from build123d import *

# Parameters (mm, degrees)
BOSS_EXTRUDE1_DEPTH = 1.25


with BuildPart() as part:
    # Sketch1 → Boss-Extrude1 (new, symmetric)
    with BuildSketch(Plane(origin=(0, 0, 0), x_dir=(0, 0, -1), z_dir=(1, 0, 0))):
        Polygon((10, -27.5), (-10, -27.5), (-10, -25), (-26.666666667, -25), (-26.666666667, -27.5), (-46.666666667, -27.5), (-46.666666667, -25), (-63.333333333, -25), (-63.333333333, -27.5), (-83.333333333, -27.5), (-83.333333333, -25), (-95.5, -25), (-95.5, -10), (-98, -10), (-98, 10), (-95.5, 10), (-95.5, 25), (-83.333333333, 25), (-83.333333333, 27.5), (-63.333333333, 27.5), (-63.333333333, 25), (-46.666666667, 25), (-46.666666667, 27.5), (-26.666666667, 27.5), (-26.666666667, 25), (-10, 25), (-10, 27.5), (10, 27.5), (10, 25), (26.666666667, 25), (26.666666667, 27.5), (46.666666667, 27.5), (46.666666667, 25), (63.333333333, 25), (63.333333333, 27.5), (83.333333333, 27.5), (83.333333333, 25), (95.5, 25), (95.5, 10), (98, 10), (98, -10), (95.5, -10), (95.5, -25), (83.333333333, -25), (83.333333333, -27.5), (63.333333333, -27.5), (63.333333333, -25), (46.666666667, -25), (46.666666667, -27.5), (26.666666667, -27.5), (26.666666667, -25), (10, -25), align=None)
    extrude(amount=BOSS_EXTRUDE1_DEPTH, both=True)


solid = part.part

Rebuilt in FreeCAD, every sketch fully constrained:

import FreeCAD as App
import Part
import Sketcher

doc = App.newDocument("Part")
params = doc.addObject("Spreadsheet::Sheet", "Params")
for row, (alias, value) in enumerate([
    ("sketch1_width", "15 mm"),
    ("sketch1_width2", "20 mm"),
    ("sketch1_width3", "2.5 mm"),
    ("pad1_length", "2.5 mm"),
], start=1):
    params.set(f"A{row}", alias)
    params.set(f"B{row}", "=" + value)
    params.setAlias(f"B{row}", alias)

body = doc.addObject("PartDesign::Body", "Body")

sketch1 = doc.addObject("Sketcher::SketchObject", "Sketch")
body.addObject(sketch1)
sketch1.AttachmentSupport = (doc.YZ_Plane, [""])
sketch1.MapMode = "FlatFace"
sketch1.addGeometry(Part.LineSegment(App.Vector(-27.5, 10, 0), App.Vector(-27.5, -10, 0)), False)
sketch1.addGeometry(Part.LineSegment(App.Vector(-27.5, -10, 0), App.Vector(-25, -10, 0)), False)
sketch1.addGeometry(Part.LineSegment(App.Vector(-25, -10, 0), App.Vector(-25, -26.666667, 0)), False)
sketch1.addGeometry(Part.LineSegment(App.Vector(-25, -26.666667, 0), App.Vector(-27.5, -26.666667, 0)), False)
sketch1.addGeometry(Part.LineSegment(App.Vector(-27.5, -26.666667, 0), App.Vector(-27.5, -46.666667, 0)), False)
sketch1.addGeometry(Part.LineSegment(App.Vector(-27.5, -46.666667, 0), App.Vector(-25, -46.666667, 0)), False)
sketch1.addGeometry(Part.LineSegment(App.Vector(-25, -46.666667, 0), App.Vector(-25, -63.333333, 0)), False)
sketch1.addGeometry(Part.LineSegment(App.Vector(-25, -63.333333, 0), App.Vector(-27.5, -63.333333, 0)), False)
sketch1.addGeometry(Part.LineSegment(App.Vector(-27.5, -63.333333, 0), App.Vector(-27.5, -83.333333, 0)), False)
sketch1.addGeometry(Part.LineSegment(App.Vector(-27.5, -83.333333, 0), App.Vector(-25, -83.333333, 0)), False)
sketch1.addGeometry(Part.LineSegment(App.Vector(-25, -83.333333, 0), App.Vector(-25, -95.5, 0)), False)
sketch1.addGeometry(Part.LineSegment(App.Vector(-25, -95.5, 0), App.Vector(-10, -95.5, 0)), False)
sketch1.addGeometry(Part.LineSegment(App.Vector(-10, -95.5, 0), App.Vector(-10, -98, 0)), False)
sketch1.addGeometry(Part.LineSegment(App.Vector(-10, -98, 0), App.Vector(10, -98, 0)), False)
sketch1.addGeometry(Part.LineSegment(App.Vector(10, -98, 0), App.Vector(10, -95.5, 0)), False)
sketch1.addGeometry(Part.LineSegment(App.Vector(10, -95.5, 0), App.Vector(25, -95.5, 0)), False)
sketch1.addGeometry(Part.LineSegment(App.Vector(25, -95.5, 0), App.Vector(25, -83.333333, 0)), False)
sketch1.addGeometry(Part.LineSegment(App.Vector(25, -83.333333, 0), App.Vector(27.5, -83.333333, 0)), False)
sketch1.addGeometry(Part.LineSegment(App.Vector(27.5, -83.333333, 0), App.Vector(27.5, -63.333333, 0)), False)
sketch1.addGeometry(Part.LineSegment(App.Vector(27.5, -63.333333, 0), App.Vector(25, -63.333333, 0)), False)
sketch1.addGeometry(Part.LineSegment(App.Vector(25, -63.333333, 0), App.Vector(25, -46.666667, 0)), False)
sketch1.addGeometry(Part.LineSegment(App.Vector(25, -46.666667, 0), App.Vector(27.5, -46.666667, 0)), False)
sketch1.addGeometry(Part.LineSegment(App.Vector(27.5, -46.666667, 0), App.Vector(27.5, -26.666667, 0)), False)
sketch1.addGeometry(Part.LineSegment(App.Vector(27.5, -26.666667, 0), App.Vector(25, -26.666667, 0)), False)
sketch1.addGeometry(Part.LineSegment(App.Vector(25, -26.666667, 0), App.Vector(25, -10, 0)), False)
sketch1.addGeometry(Part.LineSegment(App.Vector(25, -10, 0), App.Vector(27.5, -10, 0)), False)
sketch1.addGeometry(Part.LineSegment(App.Vector(27.5, -10, 0), App.Vector(27.5, 10, 0)), False)
sketch1.addGeometry(Part.LineSegment(App.Vector(27.5, 10, 0), App.Vector(25, 10, 0)), False)
sketch1.addGeometry(Part.LineSegment(App.Vector(25, 10, 0), App.Vector(25, 26.666667, 0)), False)
sketch1.addGeometry(Part.LineSegment(App.Vector(25, 26.666667, 0), App.Vector(27.5, 26.666667, 0)), False)
sketch1.addGeometry(Part.LineSegment(App.Vector(27.5, 26.666667, 0), App.Vector(27.5, 46.666667, 0)), False)
sketch1.addGeometry(Part.LineSegment(App.Vector(27.5, 46.666667, 0), App.Vector(25, 46.666667, 0)), False)
sketch1.addGeometry(Part.LineSegment(App.Vector(25, 46.666667, 0), App.Vector(25, 63.333333, 0)), False)
sketch1.addGeometry(Part.LineSegment(App.Vector(25, 63.333333, 0), App.Vector(27.5, 63.333333, 0)), False)
sketch1.addGeometry(Part.LineSegment(App.Vector(27.5, 63.333333, 0), App.Vector(27.5, 83.333333, 0)), False)
sketch1.addGeometry(Part.LineSegment(App.Vector(27.5, 83.333333, 0), App.Vector(25, 83.333333, 0)), False)
sketch1.addGeometry(Part.LineSegment(App.Vector(25, 83.333333, 0), App.Vector(25, 95.5, 0)), False)
sketch1.addGeometry(Part.LineSegment(App.Vector(25, 95.5, 0), App.Vector(10, 95.5, 0)), False)
sketch1.addGeometry(Part.LineSegment(App.Vector(10, 95.5, 0), App.Vector(10, 98, 0)), False)
sketch1.addGeometry(Part.LineSegment(App.Vector(10, 98, 0), App.Vector(-10, 98, 0)), False)
sketch1.addGeometry(Part.LineSegment(App.Vector(-10, 98, 0), App.Vector(-10, 95.5, 0)), False)
sketch1.addGeometry(Part.LineSegment(App.Vector(-10, 95.5, 0), App.Vector(-25, 95.5, 0)), False)
sketch1.addGeometry(Part.LineSegment(App.Vector(-25, 95.5, 0), App.Vector(-25, 83.333333, 0)), False)
sketch1.addGeometry(Part.LineSegment(App.Vector(-25, 83.333333, 0), App.Vector(-27.5, 83.333333, 0)), False)
sketch1.addGeometry(Part.LineSegment(App.Vector(-27.5, 83.333333, 0), App.Vector(-27.5, 63.333333, 0)), False)
sketch1.addGeometry(Part.LineSegment(App.Vector(-27.5, 63.333333, 0), App.Vector(-25, 63.333333, 0)), False)
sketch1.addGeometry(Part.LineSegment(App.Vector(-25, 63.333333, 0), App.Vector(-25, 46.666667, 0)), False)
sketch1.addGeometry(Part.LineSegment(App.Vector(-25, 46.666667, 0), App.Vector(-27.5, 46.666667, 0)), False)
sketch1.addGeometry(Part.LineSegment(App.Vector(-27.5, 46.666667, 0), App.Vector(-27.5, 26.666667, 0)), False)
sketch1.addGeometry(Part.LineSegment(App.Vector(-27.5, 26.666667, 0), App.Vector(-25, 26.666667, 0)), False)
sketch1.addGeometry(Part.LineSegment(App.Vector(-25, 26.666667, 0), App.Vector(-25, 10, 0)), False)
sketch1.addGeometry(Part.LineSegment(App.Vector(-25, 10, 0), App.Vector(-27.5, 10, 0)), False)
sketch1.addConstraint(Sketcher.Constraint("Coincident", 0, 2, 1, 1))
sketch1.addConstraint(Sketcher.Constraint("Coincident", 1, 2, 2, 1))
sketch1.addConstraint(Sketcher.Constraint("Coincident", 2, 2, 3, 1))
sketch1.addConstraint(Sketcher.Constraint("Coincident", 3, 2, 4, 1))
sketch1.addConstraint(Sketcher.Constraint("Coincident", 4, 2, 5, 1))
sketch1.addConstraint(Sketcher.Constraint("Coincident", 5, 2, 6, 1))
sketch1.addConstraint(Sketcher.Constraint("Coincident", 6, 2, 7, 1))
sketch1.addConstraint(Sketcher.Constraint("Coincident", 7, 2, 8, 1))
sketch1.addConstraint(Sketcher.Constraint("Coincident", 8, 2, 9, 1))
sketch1.addConstraint(Sketcher.Constraint("Coincident", 9, 2, 10, 1))
sketch1.addConstraint(Sketcher.Constraint("Coincident", 10, 2, 11, 1))
sketch1.addConstraint(Sketcher.Constraint("Coincident", 11, 2, 12, 1))
sketch1.addConstraint(Sketcher.Constraint("Coincident", 12, 2, 13, 1))
sketch1.addConstraint(Sketcher.Constraint("Coincident", 13, 2, 14, 1))
sketch1.addConstraint(Sketcher.Constraint("Coincident", 14, 2, 15, 1))
sketch1.addConstraint(Sketcher.Constraint("Coincident", 15, 2, 16, 1))
sketch1.addConstraint(Sketcher.Constraint("Coincident", 16, 2, 17, 1))
sketch1.addConstraint(Sketcher.Constraint("Coincident", 17, 2, 18, 1))
sketch1.addConstraint(Sketcher.Constraint("Coincident", 18, 2, 19, 1))
sketch1.addConstraint(Sketcher.Constraint("Coincident", 19, 2, 20, 1))
sketch1.addConstraint(Sketcher.Constraint("Coincident", 20, 2, 21, 1))
sketch1.addConstraint(Sketcher.Constraint("Coincident", 21, 2, 22, 1))
sketch1.addConstraint(Sketcher.Constraint("Coincident", 22, 2, 23, 1))
sketch1.addConstraint(Sketcher.Constraint("Coincident", 23, 2, 24, 1))
sketch1.addConstraint(Sketcher.Constraint("Coincident", 24, 2, 25, 1))
sketch1.addConstraint(Sketcher.Constraint("Coincident", 25, 2, 26, 1))
sketch1.addConstraint(Sketcher.Constraint("Coincident", 26, 2, 27, 1))
sketch1.addConstraint(Sketcher.Constraint("Coincident", 27, 2, 28, 1))
sketch1.addConstraint(Sketcher.Constraint("Coincident", 28, 2, 29, 1))
sketch1.addConstraint(Sketcher.Constraint("Coincident", 29, 2, 30, 1))
sketch1.addConstraint(Sketcher.Constraint("Coincident", 30, 2, 31, 1))
sketch1.addConstraint(Sketcher.Constraint("Coincident", 31, 2, 32, 1))
sketch1.addConstraint(Sketcher.Constraint("Coincident", 32, 2, 33, 1))
sketch1.addConstraint(Sketcher.Constraint("Coincident", 33, 2, 34, 1))
sketch1.addConstraint(Sketcher.Constraint("Coincident", 34, 2, 35, 1))
sketch1.addConstraint(Sketcher.Constraint("Coincident", 35, 2, 36, 1))
sketch1.addConstraint(Sketcher.Constraint("Coincident", 36, 2, 37, 1))
sketch1.addConstraint(Sketcher.Constraint("Coincident", 37, 2, 38, 1))
sketch1.addConstraint(Sketcher.Constraint("Coincident", 38, 2, 39, 1))
sketch1.addConstraint(Sketcher.Constraint("Coincident", 39, 2, 40, 1))
sketch1.addConstraint(Sketcher.Constraint("Coincident", 40, 2, 41, 1))
sketch1.addConstraint(Sketcher.Constraint("Coincident", 41, 2, 42, 1))
sketch1.addConstraint(Sketcher.Constraint("Coincident", 42, 2, 43, 1))
sketch1.addConstraint(Sketcher.Constraint("Coincident", 43, 2, 44, 1))
sketch1.addConstraint(Sketcher.Constraint("Coincident", 44, 2, 45, 1))
sketch1.addConstraint(Sketcher.Constraint("Coincident", 45, 2, 46, 1))
sketch1.addConstraint(Sketcher.Constraint("Coincident", 46, 2, 47, 1))
sketch1.addConstraint(Sketcher.Constraint("Coincident", 47, 2, 48, 1))
sketch1.addConstraint(Sketcher.Constraint("Coincident", 48, 2, 49, 1))
sketch1.addConstraint(Sketcher.Constraint("Coincident", 49, 2, 50, 1))
sketch1.addConstraint(Sketcher.Constraint("Coincident", 50, 2, 51, 1))
sketch1.addConstraint(Sketcher.Constraint("Coincident", 51, 2, 0, 1))
sketch1.addConstraint(Sketcher.Constraint("Vertical", 0))
sketch1.addConstraint(Sketcher.Constraint("Horizontal", 1))
sketch1.addConstraint(Sketcher.Constraint("Vertical", 2))
sketch1.addConstraint(Sketcher.Constraint("Horizontal", 3))
sketch1.addConstraint(Sketcher.Constraint("Vertical", 4))
sketch1.addConstraint(Sketcher.Constraint("Horizontal", 5))
sketch1.addConstraint(Sketcher.Constraint("Vertical", 6))
sketch1.addConstraint(Sketcher.Constraint("Horizontal", 7))
sketch1.addConstraint(Sketcher.Constraint("Vertical", 8))
sketch1.addConstraint(Sketcher.Constraint("Horizontal", 9))
sketch1.addConstraint(Sketcher.Constraint("Vertical", 10))
sketch1.addConstraint(Sketcher.Constraint("Horizontal", 11))
sketch1.addConstraint(Sketcher.Constraint("Vertical", 12))
sketch1.addConstraint(Sketcher.Constraint("Horizontal", 13))
sketch1.addConstraint(Sketcher.Constraint("Vertical", 14))
sketch1.addConstraint(Sketcher.Constraint("Horizontal", 15))
sketch1.addConstraint(Sketcher.Constraint("Vertical", 16))
sketch1.addConstraint(Sketcher.Constraint("Horizontal", 17))
sketch1.addConstraint(Sketcher.Constraint("Vertical", 18))
sketch1.addConstraint(Sketcher.Constraint("Horizontal", 19))
sketch1.addConstraint(Sketcher.Constraint("Vertical", 20))
sketch1.addConstraint(Sketcher.Constraint("Horizontal", 21))
sketch1.addConstraint(Sketcher.Constraint("Vertical", 22))
sketch1.addConstraint(Sketcher.Constraint("Horizontal", 23))
sketch1.addConstraint(Sketcher.Constraint("Vertical", 24))
sketch1.addConstraint(Sketcher.Constraint("Horizontal", 25))
sketch1.addConstraint(Sketcher.Constraint("Vertical", 26))
sketch1.addConstraint(Sketcher.Constraint("Horizontal", 27))
sketch1.addConstraint(Sketcher.Constraint("Vertical", 28))
sketch1.addConstraint(Sketcher.Constraint("Horizontal", 29))
sketch1.addConstraint(Sketcher.Constraint("Vertical", 30))
sketch1.addConstraint(Sketcher.Constraint("Horizontal", 31))
sketch1.addConstraint(Sketcher.Constraint("Vertical", 32))
sketch1.addConstraint(Sketcher.Constraint("Horizontal", 33))
sketch1.addConstraint(Sketcher.Constraint("Vertical", 34))
sketch1.addConstraint(Sketcher.Constraint("Horizontal", 35))
sketch1.addConstraint(Sketcher.Constraint("Vertical", 36))
sketch1.addConstraint(Sketcher.Constraint("Horizontal", 37))
sketch1.addConstraint(Sketcher.Constraint("Vertical", 38))
sketch1.addConstraint(Sketcher.Constraint("Horizontal", 39))
sketch1.addConstraint(Sketcher.Constraint("Vertical", 40))
sketch1.addConstraint(Sketcher.Constraint("Horizontal", 41))
sketch1.addConstraint(Sketcher.Constraint("Vertical", 42))
sketch1.addConstraint(Sketcher.Constraint("Horizontal", 43))
sketch1.addConstraint(Sketcher.Constraint("Vertical", 44))
sketch1.addConstraint(Sketcher.Constraint("Horizontal", 45))
sketch1.addConstraint(Sketcher.Constraint("Vertical", 46))
sketch1.addConstraint(Sketcher.Constraint("Horizontal", 47))
sketch1.addConstraint(Sketcher.Constraint("Vertical", 48))
sketch1.addConstraint(Sketcher.Constraint("Horizontal", 49))
sketch1.addConstraint(Sketcher.Constraint("Vertical", 50))
sketch1.addConstraint(Sketcher.Constraint("Horizontal", 51))
sketch1.addConstraint(Sketcher.Constraint("Symmetric", 0, 2, 26, 2, -1, 1))
sketch1.addConstraint(Sketcher.Constraint("Symmetric", 2, 2, 28, 2, -1, 1))
sketch1.addConstraint(Sketcher.Constraint("Symmetric", 4, 2, 30, 2, -1, 1))
sketch1.addConstraint(Sketcher.Constraint("Symmetric", 6, 2, 32, 2, -1, 1))
sketch1.addConstraint(Sketcher.Constraint("Symmetric", 8, 2, 34, 2, -1, 1))
sketch1.addConstraint(Sketcher.Constraint("Symmetric", 10, 2, 36, 2, -1, 1))
sketch1.addConstraint(Sketcher.Constraint("Symmetric", 12, 2, 38, 2, -1, 1))
sketch1.addConstraint(Sketcher.Constraint("Symmetric", 14, 2, 40, 2, -1, 1))
sketch1.addConstraint(Sketcher.Constraint("Symmetric", 16, 2, 42, 2, -1, 1))
sketch1.addConstraint(Sketcher.Constraint("Symmetric", 18, 2, 44, 2, -1, 1))
sketch1.addConstraint(Sketcher.Constraint("Symmetric", 20, 2, 46, 2, -1, 1))
sketch1.addConstraint(Sketcher.Constraint("Symmetric", 22, 2, 48, 2, -1, 1))
sketch1.addConstraint(Sketcher.Constraint("Symmetric", 24, 2, 50, 2, -1, 1))
sketch1.addConstraint(Sketcher.Constraint("Symmetric", 11, 2, 14, 2, -2))
sketch1.addConstraint(Sketcher.Constraint("Symmetric", 9, 2, 16, 2, -2))
sketch1.addConstraint(Sketcher.Constraint("Symmetric", 7, 2, 18, 2, -2))
sketch1.addConstraint(Sketcher.Constraint("Symmetric", 5, 2, 20, 2, -2))
sketch1.addConstraint(Sketcher.Constraint("Symmetric", 3, 2, 22, 2, -2))
sketch1.addConstraint(Sketcher.Constraint("Symmetric", 1, 2, 24, 2, -2))
sketch1.addConstraint(Sketcher.Constraint("Vertical", 0, 2, 3, 2))
sketch1.addConstraint(Sketcher.Constraint("Vertical", 2, 2, 5, 2))
sketch1.addConstraint(Sketcher.Constraint("Vertical", 4, 2, 7, 2))
sketch1.addConstraint(Sketcher.Constraint("Vertical", 6, 2, 9, 2))
sketch1.addConstraint(Sketcher.Constraint("Equal", 39, 0))
sketch1.addConstraint(Sketcher.Constraint("Equal", 0, 4))
sketch1.addConstraint(Sketcher.Constraint("Equal", 2, 6))
sketch1.addConstraint(Sketcher.Constraint("Equal", 4, 8))
sketch1.addConstraint(Sketcher.Constraint("Equal", 51, 12))
sketch1.addConstraint(Sketcher.Constraint("DistanceX", 11, 1, 11, 2, 15.0))
sketch1.addConstraint(Sketcher.Constraint("DistanceX", 13, 1, 13, 2, 20.0))
sketch1.addConstraint(Sketcher.Constraint("DistanceX", 1, 1, 1, 2, 2.5))
sketch1.addConstraint(Sketcher.Constraint("DistanceY", 12, 2, -1, 1, 98.0))
sketch1.addConstraint(Sketcher.Constraint("DistanceY", 2, 2, 2, 1, 16.666667))
sketch1.setExpression("Constraints[132]", "Params.sketch1_width")
sketch1.setExpression("Constraints[133]", "Params.sketch1_width2")
sketch1.setExpression("Constraints[134]", "Params.sketch1_width3")
pad1 = doc.addObject("PartDesign::Pad", "Pad")
body.addObject(pad1)
pad1.Profile = sketch1
pad1.setExpression("Length", "Params.pad1_length")
pad1.Midplane = True

doc.recompute()
